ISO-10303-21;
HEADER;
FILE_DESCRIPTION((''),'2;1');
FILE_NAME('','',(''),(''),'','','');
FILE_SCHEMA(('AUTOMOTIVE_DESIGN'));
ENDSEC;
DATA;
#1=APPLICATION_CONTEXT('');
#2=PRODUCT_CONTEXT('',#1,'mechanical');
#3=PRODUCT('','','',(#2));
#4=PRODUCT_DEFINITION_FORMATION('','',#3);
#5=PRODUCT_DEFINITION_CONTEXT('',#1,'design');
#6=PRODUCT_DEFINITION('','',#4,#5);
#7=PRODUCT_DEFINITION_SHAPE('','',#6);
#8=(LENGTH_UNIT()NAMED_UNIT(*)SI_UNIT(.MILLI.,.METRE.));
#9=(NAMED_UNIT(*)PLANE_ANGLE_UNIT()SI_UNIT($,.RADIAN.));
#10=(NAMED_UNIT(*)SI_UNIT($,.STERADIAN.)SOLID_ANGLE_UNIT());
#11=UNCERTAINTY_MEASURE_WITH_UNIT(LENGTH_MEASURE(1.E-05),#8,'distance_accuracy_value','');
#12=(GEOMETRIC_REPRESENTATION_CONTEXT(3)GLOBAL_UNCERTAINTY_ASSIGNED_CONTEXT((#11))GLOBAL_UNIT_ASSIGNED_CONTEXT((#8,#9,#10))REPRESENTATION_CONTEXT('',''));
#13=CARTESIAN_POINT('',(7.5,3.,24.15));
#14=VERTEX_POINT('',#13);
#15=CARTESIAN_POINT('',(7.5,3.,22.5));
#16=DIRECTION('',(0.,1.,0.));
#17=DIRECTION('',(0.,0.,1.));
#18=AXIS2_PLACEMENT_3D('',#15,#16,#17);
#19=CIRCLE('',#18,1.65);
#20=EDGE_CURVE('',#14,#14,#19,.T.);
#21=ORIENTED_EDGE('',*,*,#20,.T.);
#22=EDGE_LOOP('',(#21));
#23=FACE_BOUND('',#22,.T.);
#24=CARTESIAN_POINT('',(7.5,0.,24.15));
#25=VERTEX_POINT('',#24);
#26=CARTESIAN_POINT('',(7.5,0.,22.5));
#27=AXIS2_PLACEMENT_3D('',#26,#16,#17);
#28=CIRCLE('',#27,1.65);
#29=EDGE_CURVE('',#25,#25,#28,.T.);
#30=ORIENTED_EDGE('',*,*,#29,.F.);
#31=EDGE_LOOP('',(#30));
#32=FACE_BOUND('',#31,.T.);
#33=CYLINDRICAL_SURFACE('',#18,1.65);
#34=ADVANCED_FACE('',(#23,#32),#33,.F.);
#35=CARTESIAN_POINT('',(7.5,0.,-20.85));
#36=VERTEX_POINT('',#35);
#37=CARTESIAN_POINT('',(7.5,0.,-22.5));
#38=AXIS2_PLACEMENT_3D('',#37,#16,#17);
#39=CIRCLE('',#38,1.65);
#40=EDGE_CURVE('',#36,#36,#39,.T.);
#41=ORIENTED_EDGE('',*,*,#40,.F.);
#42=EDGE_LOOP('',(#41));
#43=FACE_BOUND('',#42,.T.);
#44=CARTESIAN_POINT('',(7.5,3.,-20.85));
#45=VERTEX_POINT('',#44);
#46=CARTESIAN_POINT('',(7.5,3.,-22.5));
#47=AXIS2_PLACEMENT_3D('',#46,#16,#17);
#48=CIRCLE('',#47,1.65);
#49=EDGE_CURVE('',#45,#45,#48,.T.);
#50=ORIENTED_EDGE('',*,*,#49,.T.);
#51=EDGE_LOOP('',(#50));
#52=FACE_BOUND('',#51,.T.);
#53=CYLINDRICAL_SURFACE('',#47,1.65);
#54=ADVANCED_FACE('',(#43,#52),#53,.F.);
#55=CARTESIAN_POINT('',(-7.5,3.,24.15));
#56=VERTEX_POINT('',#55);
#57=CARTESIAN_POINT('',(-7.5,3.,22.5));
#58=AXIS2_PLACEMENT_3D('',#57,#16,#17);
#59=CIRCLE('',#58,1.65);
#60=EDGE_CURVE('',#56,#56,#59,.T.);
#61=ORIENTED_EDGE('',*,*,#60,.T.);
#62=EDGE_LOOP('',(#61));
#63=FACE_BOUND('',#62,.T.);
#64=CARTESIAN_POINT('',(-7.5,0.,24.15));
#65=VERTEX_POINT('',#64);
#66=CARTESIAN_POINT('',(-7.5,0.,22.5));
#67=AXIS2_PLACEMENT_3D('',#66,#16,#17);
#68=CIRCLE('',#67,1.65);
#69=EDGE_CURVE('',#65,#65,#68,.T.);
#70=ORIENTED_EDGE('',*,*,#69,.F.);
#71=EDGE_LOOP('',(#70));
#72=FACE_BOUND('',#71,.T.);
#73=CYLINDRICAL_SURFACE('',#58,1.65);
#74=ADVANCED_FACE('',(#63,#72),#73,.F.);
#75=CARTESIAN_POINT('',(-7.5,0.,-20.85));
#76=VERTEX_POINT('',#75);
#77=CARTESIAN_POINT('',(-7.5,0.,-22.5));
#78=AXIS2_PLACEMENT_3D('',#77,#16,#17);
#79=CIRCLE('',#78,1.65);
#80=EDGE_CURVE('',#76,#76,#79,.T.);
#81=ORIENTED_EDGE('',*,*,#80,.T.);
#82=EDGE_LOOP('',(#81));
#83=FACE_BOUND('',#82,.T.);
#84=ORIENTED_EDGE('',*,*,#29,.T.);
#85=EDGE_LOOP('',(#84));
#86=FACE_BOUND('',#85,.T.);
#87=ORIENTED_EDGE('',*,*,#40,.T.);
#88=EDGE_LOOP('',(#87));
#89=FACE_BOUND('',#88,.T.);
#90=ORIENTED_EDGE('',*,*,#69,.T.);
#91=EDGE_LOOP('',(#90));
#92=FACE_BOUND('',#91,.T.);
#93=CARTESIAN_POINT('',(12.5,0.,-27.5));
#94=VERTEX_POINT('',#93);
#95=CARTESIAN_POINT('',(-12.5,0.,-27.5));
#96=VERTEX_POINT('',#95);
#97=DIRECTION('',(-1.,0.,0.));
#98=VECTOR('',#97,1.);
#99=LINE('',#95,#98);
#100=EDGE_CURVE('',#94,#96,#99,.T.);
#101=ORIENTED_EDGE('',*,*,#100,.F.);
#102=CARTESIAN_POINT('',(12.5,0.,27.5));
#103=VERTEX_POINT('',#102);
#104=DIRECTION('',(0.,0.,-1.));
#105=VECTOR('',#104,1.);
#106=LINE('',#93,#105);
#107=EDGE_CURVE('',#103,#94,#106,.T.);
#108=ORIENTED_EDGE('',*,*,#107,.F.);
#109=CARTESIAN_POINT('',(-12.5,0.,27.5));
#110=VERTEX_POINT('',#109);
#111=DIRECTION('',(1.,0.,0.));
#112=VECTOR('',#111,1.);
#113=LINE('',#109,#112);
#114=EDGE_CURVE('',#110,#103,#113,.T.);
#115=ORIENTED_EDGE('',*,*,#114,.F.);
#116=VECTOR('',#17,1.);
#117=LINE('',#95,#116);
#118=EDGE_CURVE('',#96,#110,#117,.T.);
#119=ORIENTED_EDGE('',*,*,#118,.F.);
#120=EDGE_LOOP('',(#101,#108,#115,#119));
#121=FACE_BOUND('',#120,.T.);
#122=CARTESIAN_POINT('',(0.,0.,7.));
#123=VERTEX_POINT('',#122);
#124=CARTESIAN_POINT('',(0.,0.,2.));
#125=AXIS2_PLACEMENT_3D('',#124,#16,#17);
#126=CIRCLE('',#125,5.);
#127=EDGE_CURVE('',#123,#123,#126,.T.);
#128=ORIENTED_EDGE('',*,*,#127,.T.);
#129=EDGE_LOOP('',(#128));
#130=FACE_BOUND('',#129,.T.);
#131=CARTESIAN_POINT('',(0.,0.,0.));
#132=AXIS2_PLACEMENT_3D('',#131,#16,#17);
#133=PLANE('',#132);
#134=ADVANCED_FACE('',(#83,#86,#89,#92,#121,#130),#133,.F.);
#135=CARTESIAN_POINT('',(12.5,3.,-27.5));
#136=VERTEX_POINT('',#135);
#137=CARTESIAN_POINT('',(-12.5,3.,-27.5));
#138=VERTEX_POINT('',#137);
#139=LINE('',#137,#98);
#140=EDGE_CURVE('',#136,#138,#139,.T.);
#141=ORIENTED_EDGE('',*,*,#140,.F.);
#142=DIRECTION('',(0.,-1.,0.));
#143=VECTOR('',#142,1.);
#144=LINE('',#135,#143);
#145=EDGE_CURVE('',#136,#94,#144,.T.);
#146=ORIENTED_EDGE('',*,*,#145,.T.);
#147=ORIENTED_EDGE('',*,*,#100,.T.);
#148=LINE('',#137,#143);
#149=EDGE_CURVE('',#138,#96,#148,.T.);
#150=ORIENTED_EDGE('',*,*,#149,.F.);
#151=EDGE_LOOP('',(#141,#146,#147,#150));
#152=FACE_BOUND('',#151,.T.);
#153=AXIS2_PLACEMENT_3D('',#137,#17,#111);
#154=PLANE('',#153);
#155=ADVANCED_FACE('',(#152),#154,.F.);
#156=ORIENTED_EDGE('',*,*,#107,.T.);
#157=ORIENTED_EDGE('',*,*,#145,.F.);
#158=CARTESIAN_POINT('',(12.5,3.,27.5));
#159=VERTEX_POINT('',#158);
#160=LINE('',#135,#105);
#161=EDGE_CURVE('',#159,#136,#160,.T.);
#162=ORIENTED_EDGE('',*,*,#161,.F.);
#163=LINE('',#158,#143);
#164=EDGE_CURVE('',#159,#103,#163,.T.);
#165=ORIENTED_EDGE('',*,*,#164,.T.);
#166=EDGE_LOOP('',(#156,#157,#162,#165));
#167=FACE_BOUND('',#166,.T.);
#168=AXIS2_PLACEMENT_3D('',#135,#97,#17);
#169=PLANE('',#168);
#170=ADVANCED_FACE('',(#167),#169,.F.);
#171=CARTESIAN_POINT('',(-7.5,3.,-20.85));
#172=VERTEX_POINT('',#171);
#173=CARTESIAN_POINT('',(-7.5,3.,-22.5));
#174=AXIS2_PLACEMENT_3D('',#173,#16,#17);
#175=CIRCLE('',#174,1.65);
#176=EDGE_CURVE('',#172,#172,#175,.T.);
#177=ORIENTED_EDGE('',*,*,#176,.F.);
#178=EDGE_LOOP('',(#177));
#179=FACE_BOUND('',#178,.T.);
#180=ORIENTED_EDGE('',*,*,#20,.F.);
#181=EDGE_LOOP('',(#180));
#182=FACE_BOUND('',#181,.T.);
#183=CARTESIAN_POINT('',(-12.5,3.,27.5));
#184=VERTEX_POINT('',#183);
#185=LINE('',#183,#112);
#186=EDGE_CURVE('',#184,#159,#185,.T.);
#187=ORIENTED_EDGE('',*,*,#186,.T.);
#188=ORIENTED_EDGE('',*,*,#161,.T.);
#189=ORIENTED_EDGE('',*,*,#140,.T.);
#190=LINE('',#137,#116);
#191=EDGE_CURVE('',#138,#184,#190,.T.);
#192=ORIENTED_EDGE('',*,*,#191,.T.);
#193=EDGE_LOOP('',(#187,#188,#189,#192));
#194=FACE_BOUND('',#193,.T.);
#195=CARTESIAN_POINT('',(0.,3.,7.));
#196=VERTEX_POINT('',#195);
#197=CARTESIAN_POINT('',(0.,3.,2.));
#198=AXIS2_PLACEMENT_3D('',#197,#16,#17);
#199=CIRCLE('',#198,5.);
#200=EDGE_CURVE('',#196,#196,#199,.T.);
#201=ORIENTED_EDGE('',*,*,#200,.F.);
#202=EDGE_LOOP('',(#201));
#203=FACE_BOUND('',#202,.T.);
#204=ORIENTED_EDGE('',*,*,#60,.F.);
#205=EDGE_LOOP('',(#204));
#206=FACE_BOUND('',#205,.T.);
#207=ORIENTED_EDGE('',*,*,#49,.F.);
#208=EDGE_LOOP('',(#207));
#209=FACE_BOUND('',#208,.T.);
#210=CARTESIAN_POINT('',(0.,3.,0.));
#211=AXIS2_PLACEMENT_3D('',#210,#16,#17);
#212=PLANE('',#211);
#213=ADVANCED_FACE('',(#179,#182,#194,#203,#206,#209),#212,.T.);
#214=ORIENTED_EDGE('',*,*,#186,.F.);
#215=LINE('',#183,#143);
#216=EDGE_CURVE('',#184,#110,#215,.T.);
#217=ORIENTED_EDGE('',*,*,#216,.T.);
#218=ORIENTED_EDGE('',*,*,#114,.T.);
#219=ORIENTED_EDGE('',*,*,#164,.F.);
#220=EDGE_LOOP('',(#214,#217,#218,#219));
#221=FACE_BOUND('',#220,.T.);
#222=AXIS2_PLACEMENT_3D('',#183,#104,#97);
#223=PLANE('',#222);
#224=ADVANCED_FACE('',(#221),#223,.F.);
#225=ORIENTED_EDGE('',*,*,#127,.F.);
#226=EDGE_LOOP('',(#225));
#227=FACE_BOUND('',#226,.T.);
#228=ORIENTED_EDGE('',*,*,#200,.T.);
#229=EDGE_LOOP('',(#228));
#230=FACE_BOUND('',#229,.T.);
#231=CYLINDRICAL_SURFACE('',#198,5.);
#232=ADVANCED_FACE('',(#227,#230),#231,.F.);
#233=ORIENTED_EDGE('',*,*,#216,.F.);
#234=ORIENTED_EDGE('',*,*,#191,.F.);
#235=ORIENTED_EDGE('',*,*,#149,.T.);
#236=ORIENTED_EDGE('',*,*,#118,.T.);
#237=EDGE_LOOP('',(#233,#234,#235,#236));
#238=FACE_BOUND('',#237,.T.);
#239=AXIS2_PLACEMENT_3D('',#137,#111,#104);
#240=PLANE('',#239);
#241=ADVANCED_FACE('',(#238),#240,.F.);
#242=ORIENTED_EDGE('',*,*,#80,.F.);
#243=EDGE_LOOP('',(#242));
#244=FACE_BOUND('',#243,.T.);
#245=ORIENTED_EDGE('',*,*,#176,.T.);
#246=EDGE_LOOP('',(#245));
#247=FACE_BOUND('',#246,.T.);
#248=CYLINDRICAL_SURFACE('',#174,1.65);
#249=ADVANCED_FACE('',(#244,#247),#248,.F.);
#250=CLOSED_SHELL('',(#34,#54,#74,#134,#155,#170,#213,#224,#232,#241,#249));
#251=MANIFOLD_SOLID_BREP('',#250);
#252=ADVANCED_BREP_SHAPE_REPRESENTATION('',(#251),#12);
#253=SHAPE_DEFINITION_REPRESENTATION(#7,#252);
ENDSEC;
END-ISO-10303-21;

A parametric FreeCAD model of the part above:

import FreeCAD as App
import Part
import Sketcher

V = App.Vector
Q = App.Units.Quantity


def add_polygon(sketch, points):
    """Adds a closed chain of lines whose ends are joined by coincident constraints."""
    first, n = sketch.GeometryCount, len(points)
    for a, b in zip(points, points[1:] + points[:1]):
        sketch.addGeometry(Part.LineSegment(App.Vector(*a, 0), App.Vector(*b, 0)), False)
    for i in range(n):
        sketch.addConstraint(Sketcher.Constraint("Coincident", first + i, 2, first + (i + 1) % n, 1))

doc = App.newDocument("Part")
body = doc.addObject("PartDesign::Body", "Body")

# Sketch on XZ plane
sketch1 = body.newObject("Sketcher::SketchObject", "Sketch")
sketch1.AttachmentSupport = (doc.getObject("XZ_Plane"), [""])
sketch1.MapMode = "FlatFace"
add_polygon(sketch1, [(-12, -28), (-12, 28), (12, 28), (12, -28)])  # lines 0-3
sketch1.addConstraint([
    Sketcher.Constraint("Vertical", 0),
    Sketcher.Constraint("Horizontal", 1),
    Sketcher.Constraint("Vertical", 2),
    Sketcher.Constraint("Horizontal", 3),
    Sketcher.Constraint("Symmetric", 0, 2, 2, 2, -1, 1),
    Sketcher.Constraint("DistanceX", 1, 1, 1, 2, Q("25 mm")),
    Sketcher.Constraint("DistanceY", 0, 1, 0, 2, Q("55 mm")),
])
pad1 = body.newObject("PartDesign::Pad", "Pad")
pad1.Profile = sketch1
pad1.Length = 3
pad1.Reversed = True

# Sketch on XZ plane
sketch2 = body.newObject("Sketcher::SketchObject", "Sketch001")
sketch2.AttachmentSupport = (doc.getObject("XZ_Plane"), [""])
sketch2.MapMode = "FlatFace"
sketch2.AttachmentOffset = App.Placement(V(0, 0, -3), App.Rotation())
sketch2.addGeometry([
    Part.Circle(V(-7.5, -22.5, 0), V(0, 0, 1), 1.6),
    Part.Circle(V(7.5, -22.5, 0), V(0, 0, 1), 1.6),
    Part.Circle(V(7.5, 22.5, 0), V(0, 0, 1), 1.6),
    Part.Circle(V(-7.5, 22.5, 0), V(0, 0, 1), 1.6),
], False)
sketch2.addConstraint([
    Sketcher.Constraint("Equal", 0, 1),
    Sketcher.Constraint("Equal", 1, 2),
    Sketcher.Constraint("Equal", 2, 3),
    Sketcher.Constraint("Symmetric", 0, 3, 2, 3, -1, 1),
    Sketcher.Constraint("Symmetric", 1, 3, 3, 3, -1, 1),
    Sketcher.Constraint("Symmetric", 0, 3, 1, 3, -2),
    Sketcher.Constraint("Diameter", 0, Q("3.3 mm")),
    Sketcher.Constraint("DistanceX", 0, 3, 1, 3, Q("15 mm")),
    Sketcher.Constraint("DistanceY", 1, 3, 2, 3, Q("45 mm")),
])
doc.recompute()
hole = body.newObject("PartDesign::Hole", "Hole")
hole.Profile = sketch2
hole.ThreadType = "None"
hole.Diameter = 3.3
hole.DepthType = "ThroughAll"
hole.Reversed = True

# Sketch on XZ plane
sketch3 = body.newObject("Sketcher::SketchObject", "Sketch002")
sketch3.AttachmentSupport = (doc.getObject("XZ_Plane"), [""])
sketch3.MapMode = "FlatFace"
sketch3.AttachmentOffset = App.Placement(V(0, 0, -3), App.Rotation())
sketch3.addGeometry(Part.Circle(V(0, 2, 0), V(0, 0, 1), 5), False)
sketch3.addConstraint([
    Sketcher.Constraint("PointOnObject", 0, 3, -2),
    Sketcher.Constraint("Diameter", 0, Q("10 mm")),
    Sketcher.Constraint("DistanceY", -1, 1, 0, 3, Q("2 mm")),
])
doc.recompute()
hole2 = body.newObject("PartDesign::Hole", "Hole001")
hole2.Profile = sketch3
hole2.ThreadType = "None"
hole2.Diameter = 10
hole2.DepthType = "ThroughAll"
hole2.Reversed = True

doc.recompute()
